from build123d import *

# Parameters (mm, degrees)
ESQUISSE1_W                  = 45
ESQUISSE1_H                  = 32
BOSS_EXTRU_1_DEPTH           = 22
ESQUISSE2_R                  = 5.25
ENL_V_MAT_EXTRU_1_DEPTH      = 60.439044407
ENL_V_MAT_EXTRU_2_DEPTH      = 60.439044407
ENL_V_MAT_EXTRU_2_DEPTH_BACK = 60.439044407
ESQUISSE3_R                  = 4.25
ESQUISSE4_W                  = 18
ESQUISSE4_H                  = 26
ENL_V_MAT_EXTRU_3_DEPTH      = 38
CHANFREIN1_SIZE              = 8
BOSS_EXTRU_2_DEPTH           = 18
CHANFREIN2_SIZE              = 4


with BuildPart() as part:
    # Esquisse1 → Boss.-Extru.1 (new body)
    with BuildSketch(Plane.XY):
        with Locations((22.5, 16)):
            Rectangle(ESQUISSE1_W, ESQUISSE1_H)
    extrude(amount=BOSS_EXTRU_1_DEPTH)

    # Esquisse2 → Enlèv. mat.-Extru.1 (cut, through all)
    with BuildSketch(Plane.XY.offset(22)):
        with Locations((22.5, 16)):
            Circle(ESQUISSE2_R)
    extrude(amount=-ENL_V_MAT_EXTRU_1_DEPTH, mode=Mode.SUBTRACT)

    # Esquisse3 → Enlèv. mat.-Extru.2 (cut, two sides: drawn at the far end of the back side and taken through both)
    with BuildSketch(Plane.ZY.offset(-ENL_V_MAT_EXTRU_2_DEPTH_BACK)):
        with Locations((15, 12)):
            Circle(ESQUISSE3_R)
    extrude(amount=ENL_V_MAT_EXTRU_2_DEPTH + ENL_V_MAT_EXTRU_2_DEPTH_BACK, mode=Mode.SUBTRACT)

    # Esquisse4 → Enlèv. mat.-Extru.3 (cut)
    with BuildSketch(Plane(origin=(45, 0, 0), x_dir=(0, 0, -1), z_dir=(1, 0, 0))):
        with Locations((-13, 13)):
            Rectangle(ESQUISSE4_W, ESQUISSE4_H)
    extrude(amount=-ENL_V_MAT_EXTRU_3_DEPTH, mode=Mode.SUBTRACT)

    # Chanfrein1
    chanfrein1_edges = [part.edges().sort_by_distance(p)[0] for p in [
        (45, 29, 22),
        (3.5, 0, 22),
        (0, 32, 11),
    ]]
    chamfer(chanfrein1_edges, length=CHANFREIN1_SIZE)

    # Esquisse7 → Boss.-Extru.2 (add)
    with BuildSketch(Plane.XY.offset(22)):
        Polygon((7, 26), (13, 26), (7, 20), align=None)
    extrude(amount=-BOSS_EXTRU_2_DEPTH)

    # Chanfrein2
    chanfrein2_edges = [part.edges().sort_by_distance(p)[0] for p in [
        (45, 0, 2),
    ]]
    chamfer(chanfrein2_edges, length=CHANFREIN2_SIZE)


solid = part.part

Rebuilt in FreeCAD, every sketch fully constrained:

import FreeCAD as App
import Part
import Sketcher
from FreeCAD import Vector
Q = App.Units.Quantity


def edges_at(feature, points):
    """Names of the edges that pass closest to the given points."""
    edges = feature.Shape.Edges
    near = lambda p: min(range(len(edges)), key=lambda i: edges[i].distToShape(Part.Vertex(*p))[0])
    return sorted({f"Edge{near(p) + 1}" for p in points})

doc = App.newDocument("Part")
body = doc.addObject("PartDesign::Body", "Body")

# Sketch on XY plane
sketch1 = doc.addObject("Sketcher::SketchObject", "Sketch")
body.addObject(sketch1)
sketch1.AttachmentSupport = (doc.XY_Plane, [""])
sketch1.MapMode = "FlatFace"
sketch1.addGeometry(Part.LineSegment(Vector(0, 32, 0), Vector(0, 0, 0)), False)
sketch1.addGeometry(Part.LineSegment(Vector(0, 0, 0), Vector(45, 0, 0)), False)
sketch1.addGeometry(Part.LineSegment(Vector(45, 0, 0), Vector(45, 32, 0)), False)
sketch1.addGeometry(Part.LineSegment(Vector(45, 32, 0), Vector(0, 32, 0)), False)
sketch1.addConstraint(Sketcher.Constraint("Coincident", 0, 2, 1, 1))
sketch1.addConstraint(Sketcher.Constraint("Coincident", 1, 2, 2, 1))
sketch1.addConstraint(Sketcher.Constraint("Coincident", 2, 2, 3, 1))
sketch1.addConstraint(Sketcher.Constraint("Coincident", 3, 2, 0, 1))
sketch1.addConstraint(Sketcher.Constraint("Vertical", 0))
sketch1.addConstraint(Sketcher.Constraint("Horizontal", 1))
sketch1.addConstraint(Sketcher.Constraint("Vertical", 2))
sketch1.addConstraint(Sketcher.Constraint("Horizontal", 3))
sketch1.addConstraint(Sketcher.Constraint("Coincident", 0, 2, -1, 1))
sketch1.addConstraint(Sketcher.Constraint("DistanceX", 1, 1, 1, 2, Q("45 mm")))
sketch1.addConstraint(Sketcher.Constraint("DistanceY", 0, 2, 0, 1, Q("32 mm")))
pad1 = doc.addObject("PartDesign::Pad", "Pad")
body.addObject(pad1)
pad1.Profile = sketch1
pad1.Length = 22

# Sketch on XY plane
sketch2 = doc.addObject("Sketcher::SketchObject", "Sketch001")
body.addObject(sketch2)
sketch2.AttachmentSupport = (doc.XY_Plane, [""])
sketch2.MapMode = "FlatFace"
sketch2.AttachmentOffset = App.Placement(Vector(0, 0, 22), App.Rotation())
sketch2.addGeometry(Part.Circle(Vector(22, 16, 0), Vector(0, 0, 1), 5), False)
sketch2.addConstraint(Sketcher.Constraint("Diameter", 0, Q("10.5 mm")))
sketch2.addConstraint(Sketcher.Constraint("DistanceY", -1, 1, 0, 3, Q("16 mm")))
sketch2.addConstraint(Sketcher.Constraint("DistanceX", -1, 1, 0, 3, Q("22.5 mm")))
pocket1 = doc.addObject("PartDesign::Pocket", "Pocket")
body.addObject(pocket1)
pocket1.Profile = sketch2
pocket1.Type = "ThroughAll"

# Sketch on YZ plane
sketch3 = doc.addObject("Sketcher::SketchObject", "Sketch002")
body.addObject(sketch3)
sketch3.AttachmentSupport = (doc.YZ_Plane, [""])
sketch3.MapMode = "FlatFace"
sketch3.addGeometry(Part.Circle(Vector(12, 15, 0), Vector(0, 0, 1), 4.2), False)
sketch3.addConstraint(Sketcher.Constraint("Diameter", 0, Q("8.5 mm")))
sketch3.addConstraint(Sketcher.Constraint("DistanceX", -1, 1, 0, 3, Q("12 mm")))
sketch3.addConstraint(Sketcher.Constraint("DistanceY", -1, 1, 0, 3, Q("15 mm")))
pocket2 = doc.addObject("PartDesign::Pocket", "Pocket001")
body.addObject(pocket2)
pocket2.Profile = sketch3
pocket2.Type = "ThroughAll"
pocket2.Midplane = True

# Sketch on YZ plane
sketch4 = doc.addObject("Sketcher::SketchObject", "Sketch003")
body.addObject(sketch4)
sketch4.AttachmentSupport = (doc.YZ_Plane, [""])
sketch4.MapMode = "FlatFace"
sketch4.AttachmentOffset = App.Placement(Vector(0, 0, 45), App.Rotation())
sketch4.addGeometry(Part.LineSegment(Vector(26, 22, 0), Vector(0, 22, 0)), False)
sketch4.addGeometry(Part.LineSegment(Vector(0, 22, 0), Vector(0, 4, 0)), False)
sketch4.addGeometry(Part.LineSegment(Vector(0, 4, 0), Vector(26, 4, 0)), False)
sketch4.addGeometry(Part.LineSegment(Vector(26, 4, 0), Vector(26, 22, 0)), False)
sketch4.addConstraint(Sketcher.Constraint("Coincident", 0, 2, 1, 1))
sketch4.addConstraint(Sketcher.Constraint("Coincident", 1, 2, 2, 1))
sketch4.addConstraint(Sketcher.Constraint("Coincident", 2, 2, 3, 1))
sketch4.addConstraint(Sketcher.Constraint("Coincident", 3, 2, 0, 1))
sketch4.addConstraint(Sketcher.Constraint("Horizontal", 0))
sketch4.addConstraint(Sketcher.Constraint("Vertical", 1))
sketch4.addConstraint(Sketcher.Constraint("Horizontal", 2))
sketch4.addConstraint(Sketcher.Constraint("Vertical", 3))
sketch4.addConstraint(Sketcher.Constraint("PointOnObject", 0, 2, -2))
sketch4.addConstraint(Sketcher.Constraint("DistanceX", 0, 2, 0, 1, Q("26 mm")))
sketch4.addConstraint(Sketcher.Constraint("DistanceY", 1, 2, 1, 1, Q("18 mm")))
sketch4.addConstraint(Sketcher.Constraint("DistanceY", -1, 1, 0, 2, Q("22 mm")))
pocket3 = doc.addObject("PartDesign::Pocket", "Pocket002")
body.addObject(pocket3)
pocket3.Profile = sketch4
pocket3.Length = 38
doc.recompute()

chamfer = doc.addObject("PartDesign::Chamfer", "Chamfer")
body.addObject(chamfer)
chamfer.Base = (pocket3, edges_at(pocket3, [(45, 29, 22), (3.5, 0, 22), (0, 32, 11)]))
chamfer.Size = 8

# Sketch on XY plane
sketch5 = doc.addObject("Sketcher::SketchObject", "Sketch004")
body.addObject(sketch5)
sketch5.AttachmentSupport = (doc.XY_Plane, [""])
sketch5.MapMode = "FlatFace"
sketch5.AttachmentOffset = App.Placement(Vector(0, 0, 22), App.Rotation())
sketch5.addGeometry(Part.LineSegment(Vector(13, 26, 0), Vector(7, 26, 0)), False)
sketch5.addGeometry(Part.LineSegment(Vector(7, 26, 0), Vector(7, 20, 0)), False)
sketch5.addGeometry(Part.LineSegment(Vector(7, 20, 0), Vector(13, 26, 0)), False)
sketch5.addConstraint(Sketcher.Constraint("Coincident", 0, 2, 1, 1))
sketch5.addConstraint(Sketcher.Constraint("Coincident", 1, 2, 2, 1))
sketch5.addConstraint(Sketcher.Constraint("Coincident", 2, 2, 0, 1))
sketch5.addConstraint(Sketcher.Constraint("Horizontal", 0))
sketch5.addConstraint(Sketcher.Constraint("Vertical", 1))
sketch5.addConstraint(Sketcher.Constraint("Equal", 0, 1))
sketch5.addConstraint(Sketcher.Constraint("DistanceX", 0, 2, 0, 1, Q("6 mm")))
sketch5.addConstraint(Sketcher.Constraint("DistanceX", -1, 1, 0, 2, Q("7 mm")))
sketch5.addConstraint(Sketcher.Constraint("DistanceY", -1, 1, 0, 2, Q("26 mm")))
pad2 = doc.addObject("PartDesign::Pad", "Pad001")
body.addObject(pad2)
pad2.Profile = sketch5
pad2.Length = 18
pad2.Reversed = True
doc.recompute()

chamfer2 = doc.addObject("PartDesign::Chamfer", "Chamfer001")
body.addObject(chamfer2)
chamfer2.Base = (pad2, edges_at(pad2, [(45, 0, 2)]))
chamfer2.Size = 4

doc.recompute()
